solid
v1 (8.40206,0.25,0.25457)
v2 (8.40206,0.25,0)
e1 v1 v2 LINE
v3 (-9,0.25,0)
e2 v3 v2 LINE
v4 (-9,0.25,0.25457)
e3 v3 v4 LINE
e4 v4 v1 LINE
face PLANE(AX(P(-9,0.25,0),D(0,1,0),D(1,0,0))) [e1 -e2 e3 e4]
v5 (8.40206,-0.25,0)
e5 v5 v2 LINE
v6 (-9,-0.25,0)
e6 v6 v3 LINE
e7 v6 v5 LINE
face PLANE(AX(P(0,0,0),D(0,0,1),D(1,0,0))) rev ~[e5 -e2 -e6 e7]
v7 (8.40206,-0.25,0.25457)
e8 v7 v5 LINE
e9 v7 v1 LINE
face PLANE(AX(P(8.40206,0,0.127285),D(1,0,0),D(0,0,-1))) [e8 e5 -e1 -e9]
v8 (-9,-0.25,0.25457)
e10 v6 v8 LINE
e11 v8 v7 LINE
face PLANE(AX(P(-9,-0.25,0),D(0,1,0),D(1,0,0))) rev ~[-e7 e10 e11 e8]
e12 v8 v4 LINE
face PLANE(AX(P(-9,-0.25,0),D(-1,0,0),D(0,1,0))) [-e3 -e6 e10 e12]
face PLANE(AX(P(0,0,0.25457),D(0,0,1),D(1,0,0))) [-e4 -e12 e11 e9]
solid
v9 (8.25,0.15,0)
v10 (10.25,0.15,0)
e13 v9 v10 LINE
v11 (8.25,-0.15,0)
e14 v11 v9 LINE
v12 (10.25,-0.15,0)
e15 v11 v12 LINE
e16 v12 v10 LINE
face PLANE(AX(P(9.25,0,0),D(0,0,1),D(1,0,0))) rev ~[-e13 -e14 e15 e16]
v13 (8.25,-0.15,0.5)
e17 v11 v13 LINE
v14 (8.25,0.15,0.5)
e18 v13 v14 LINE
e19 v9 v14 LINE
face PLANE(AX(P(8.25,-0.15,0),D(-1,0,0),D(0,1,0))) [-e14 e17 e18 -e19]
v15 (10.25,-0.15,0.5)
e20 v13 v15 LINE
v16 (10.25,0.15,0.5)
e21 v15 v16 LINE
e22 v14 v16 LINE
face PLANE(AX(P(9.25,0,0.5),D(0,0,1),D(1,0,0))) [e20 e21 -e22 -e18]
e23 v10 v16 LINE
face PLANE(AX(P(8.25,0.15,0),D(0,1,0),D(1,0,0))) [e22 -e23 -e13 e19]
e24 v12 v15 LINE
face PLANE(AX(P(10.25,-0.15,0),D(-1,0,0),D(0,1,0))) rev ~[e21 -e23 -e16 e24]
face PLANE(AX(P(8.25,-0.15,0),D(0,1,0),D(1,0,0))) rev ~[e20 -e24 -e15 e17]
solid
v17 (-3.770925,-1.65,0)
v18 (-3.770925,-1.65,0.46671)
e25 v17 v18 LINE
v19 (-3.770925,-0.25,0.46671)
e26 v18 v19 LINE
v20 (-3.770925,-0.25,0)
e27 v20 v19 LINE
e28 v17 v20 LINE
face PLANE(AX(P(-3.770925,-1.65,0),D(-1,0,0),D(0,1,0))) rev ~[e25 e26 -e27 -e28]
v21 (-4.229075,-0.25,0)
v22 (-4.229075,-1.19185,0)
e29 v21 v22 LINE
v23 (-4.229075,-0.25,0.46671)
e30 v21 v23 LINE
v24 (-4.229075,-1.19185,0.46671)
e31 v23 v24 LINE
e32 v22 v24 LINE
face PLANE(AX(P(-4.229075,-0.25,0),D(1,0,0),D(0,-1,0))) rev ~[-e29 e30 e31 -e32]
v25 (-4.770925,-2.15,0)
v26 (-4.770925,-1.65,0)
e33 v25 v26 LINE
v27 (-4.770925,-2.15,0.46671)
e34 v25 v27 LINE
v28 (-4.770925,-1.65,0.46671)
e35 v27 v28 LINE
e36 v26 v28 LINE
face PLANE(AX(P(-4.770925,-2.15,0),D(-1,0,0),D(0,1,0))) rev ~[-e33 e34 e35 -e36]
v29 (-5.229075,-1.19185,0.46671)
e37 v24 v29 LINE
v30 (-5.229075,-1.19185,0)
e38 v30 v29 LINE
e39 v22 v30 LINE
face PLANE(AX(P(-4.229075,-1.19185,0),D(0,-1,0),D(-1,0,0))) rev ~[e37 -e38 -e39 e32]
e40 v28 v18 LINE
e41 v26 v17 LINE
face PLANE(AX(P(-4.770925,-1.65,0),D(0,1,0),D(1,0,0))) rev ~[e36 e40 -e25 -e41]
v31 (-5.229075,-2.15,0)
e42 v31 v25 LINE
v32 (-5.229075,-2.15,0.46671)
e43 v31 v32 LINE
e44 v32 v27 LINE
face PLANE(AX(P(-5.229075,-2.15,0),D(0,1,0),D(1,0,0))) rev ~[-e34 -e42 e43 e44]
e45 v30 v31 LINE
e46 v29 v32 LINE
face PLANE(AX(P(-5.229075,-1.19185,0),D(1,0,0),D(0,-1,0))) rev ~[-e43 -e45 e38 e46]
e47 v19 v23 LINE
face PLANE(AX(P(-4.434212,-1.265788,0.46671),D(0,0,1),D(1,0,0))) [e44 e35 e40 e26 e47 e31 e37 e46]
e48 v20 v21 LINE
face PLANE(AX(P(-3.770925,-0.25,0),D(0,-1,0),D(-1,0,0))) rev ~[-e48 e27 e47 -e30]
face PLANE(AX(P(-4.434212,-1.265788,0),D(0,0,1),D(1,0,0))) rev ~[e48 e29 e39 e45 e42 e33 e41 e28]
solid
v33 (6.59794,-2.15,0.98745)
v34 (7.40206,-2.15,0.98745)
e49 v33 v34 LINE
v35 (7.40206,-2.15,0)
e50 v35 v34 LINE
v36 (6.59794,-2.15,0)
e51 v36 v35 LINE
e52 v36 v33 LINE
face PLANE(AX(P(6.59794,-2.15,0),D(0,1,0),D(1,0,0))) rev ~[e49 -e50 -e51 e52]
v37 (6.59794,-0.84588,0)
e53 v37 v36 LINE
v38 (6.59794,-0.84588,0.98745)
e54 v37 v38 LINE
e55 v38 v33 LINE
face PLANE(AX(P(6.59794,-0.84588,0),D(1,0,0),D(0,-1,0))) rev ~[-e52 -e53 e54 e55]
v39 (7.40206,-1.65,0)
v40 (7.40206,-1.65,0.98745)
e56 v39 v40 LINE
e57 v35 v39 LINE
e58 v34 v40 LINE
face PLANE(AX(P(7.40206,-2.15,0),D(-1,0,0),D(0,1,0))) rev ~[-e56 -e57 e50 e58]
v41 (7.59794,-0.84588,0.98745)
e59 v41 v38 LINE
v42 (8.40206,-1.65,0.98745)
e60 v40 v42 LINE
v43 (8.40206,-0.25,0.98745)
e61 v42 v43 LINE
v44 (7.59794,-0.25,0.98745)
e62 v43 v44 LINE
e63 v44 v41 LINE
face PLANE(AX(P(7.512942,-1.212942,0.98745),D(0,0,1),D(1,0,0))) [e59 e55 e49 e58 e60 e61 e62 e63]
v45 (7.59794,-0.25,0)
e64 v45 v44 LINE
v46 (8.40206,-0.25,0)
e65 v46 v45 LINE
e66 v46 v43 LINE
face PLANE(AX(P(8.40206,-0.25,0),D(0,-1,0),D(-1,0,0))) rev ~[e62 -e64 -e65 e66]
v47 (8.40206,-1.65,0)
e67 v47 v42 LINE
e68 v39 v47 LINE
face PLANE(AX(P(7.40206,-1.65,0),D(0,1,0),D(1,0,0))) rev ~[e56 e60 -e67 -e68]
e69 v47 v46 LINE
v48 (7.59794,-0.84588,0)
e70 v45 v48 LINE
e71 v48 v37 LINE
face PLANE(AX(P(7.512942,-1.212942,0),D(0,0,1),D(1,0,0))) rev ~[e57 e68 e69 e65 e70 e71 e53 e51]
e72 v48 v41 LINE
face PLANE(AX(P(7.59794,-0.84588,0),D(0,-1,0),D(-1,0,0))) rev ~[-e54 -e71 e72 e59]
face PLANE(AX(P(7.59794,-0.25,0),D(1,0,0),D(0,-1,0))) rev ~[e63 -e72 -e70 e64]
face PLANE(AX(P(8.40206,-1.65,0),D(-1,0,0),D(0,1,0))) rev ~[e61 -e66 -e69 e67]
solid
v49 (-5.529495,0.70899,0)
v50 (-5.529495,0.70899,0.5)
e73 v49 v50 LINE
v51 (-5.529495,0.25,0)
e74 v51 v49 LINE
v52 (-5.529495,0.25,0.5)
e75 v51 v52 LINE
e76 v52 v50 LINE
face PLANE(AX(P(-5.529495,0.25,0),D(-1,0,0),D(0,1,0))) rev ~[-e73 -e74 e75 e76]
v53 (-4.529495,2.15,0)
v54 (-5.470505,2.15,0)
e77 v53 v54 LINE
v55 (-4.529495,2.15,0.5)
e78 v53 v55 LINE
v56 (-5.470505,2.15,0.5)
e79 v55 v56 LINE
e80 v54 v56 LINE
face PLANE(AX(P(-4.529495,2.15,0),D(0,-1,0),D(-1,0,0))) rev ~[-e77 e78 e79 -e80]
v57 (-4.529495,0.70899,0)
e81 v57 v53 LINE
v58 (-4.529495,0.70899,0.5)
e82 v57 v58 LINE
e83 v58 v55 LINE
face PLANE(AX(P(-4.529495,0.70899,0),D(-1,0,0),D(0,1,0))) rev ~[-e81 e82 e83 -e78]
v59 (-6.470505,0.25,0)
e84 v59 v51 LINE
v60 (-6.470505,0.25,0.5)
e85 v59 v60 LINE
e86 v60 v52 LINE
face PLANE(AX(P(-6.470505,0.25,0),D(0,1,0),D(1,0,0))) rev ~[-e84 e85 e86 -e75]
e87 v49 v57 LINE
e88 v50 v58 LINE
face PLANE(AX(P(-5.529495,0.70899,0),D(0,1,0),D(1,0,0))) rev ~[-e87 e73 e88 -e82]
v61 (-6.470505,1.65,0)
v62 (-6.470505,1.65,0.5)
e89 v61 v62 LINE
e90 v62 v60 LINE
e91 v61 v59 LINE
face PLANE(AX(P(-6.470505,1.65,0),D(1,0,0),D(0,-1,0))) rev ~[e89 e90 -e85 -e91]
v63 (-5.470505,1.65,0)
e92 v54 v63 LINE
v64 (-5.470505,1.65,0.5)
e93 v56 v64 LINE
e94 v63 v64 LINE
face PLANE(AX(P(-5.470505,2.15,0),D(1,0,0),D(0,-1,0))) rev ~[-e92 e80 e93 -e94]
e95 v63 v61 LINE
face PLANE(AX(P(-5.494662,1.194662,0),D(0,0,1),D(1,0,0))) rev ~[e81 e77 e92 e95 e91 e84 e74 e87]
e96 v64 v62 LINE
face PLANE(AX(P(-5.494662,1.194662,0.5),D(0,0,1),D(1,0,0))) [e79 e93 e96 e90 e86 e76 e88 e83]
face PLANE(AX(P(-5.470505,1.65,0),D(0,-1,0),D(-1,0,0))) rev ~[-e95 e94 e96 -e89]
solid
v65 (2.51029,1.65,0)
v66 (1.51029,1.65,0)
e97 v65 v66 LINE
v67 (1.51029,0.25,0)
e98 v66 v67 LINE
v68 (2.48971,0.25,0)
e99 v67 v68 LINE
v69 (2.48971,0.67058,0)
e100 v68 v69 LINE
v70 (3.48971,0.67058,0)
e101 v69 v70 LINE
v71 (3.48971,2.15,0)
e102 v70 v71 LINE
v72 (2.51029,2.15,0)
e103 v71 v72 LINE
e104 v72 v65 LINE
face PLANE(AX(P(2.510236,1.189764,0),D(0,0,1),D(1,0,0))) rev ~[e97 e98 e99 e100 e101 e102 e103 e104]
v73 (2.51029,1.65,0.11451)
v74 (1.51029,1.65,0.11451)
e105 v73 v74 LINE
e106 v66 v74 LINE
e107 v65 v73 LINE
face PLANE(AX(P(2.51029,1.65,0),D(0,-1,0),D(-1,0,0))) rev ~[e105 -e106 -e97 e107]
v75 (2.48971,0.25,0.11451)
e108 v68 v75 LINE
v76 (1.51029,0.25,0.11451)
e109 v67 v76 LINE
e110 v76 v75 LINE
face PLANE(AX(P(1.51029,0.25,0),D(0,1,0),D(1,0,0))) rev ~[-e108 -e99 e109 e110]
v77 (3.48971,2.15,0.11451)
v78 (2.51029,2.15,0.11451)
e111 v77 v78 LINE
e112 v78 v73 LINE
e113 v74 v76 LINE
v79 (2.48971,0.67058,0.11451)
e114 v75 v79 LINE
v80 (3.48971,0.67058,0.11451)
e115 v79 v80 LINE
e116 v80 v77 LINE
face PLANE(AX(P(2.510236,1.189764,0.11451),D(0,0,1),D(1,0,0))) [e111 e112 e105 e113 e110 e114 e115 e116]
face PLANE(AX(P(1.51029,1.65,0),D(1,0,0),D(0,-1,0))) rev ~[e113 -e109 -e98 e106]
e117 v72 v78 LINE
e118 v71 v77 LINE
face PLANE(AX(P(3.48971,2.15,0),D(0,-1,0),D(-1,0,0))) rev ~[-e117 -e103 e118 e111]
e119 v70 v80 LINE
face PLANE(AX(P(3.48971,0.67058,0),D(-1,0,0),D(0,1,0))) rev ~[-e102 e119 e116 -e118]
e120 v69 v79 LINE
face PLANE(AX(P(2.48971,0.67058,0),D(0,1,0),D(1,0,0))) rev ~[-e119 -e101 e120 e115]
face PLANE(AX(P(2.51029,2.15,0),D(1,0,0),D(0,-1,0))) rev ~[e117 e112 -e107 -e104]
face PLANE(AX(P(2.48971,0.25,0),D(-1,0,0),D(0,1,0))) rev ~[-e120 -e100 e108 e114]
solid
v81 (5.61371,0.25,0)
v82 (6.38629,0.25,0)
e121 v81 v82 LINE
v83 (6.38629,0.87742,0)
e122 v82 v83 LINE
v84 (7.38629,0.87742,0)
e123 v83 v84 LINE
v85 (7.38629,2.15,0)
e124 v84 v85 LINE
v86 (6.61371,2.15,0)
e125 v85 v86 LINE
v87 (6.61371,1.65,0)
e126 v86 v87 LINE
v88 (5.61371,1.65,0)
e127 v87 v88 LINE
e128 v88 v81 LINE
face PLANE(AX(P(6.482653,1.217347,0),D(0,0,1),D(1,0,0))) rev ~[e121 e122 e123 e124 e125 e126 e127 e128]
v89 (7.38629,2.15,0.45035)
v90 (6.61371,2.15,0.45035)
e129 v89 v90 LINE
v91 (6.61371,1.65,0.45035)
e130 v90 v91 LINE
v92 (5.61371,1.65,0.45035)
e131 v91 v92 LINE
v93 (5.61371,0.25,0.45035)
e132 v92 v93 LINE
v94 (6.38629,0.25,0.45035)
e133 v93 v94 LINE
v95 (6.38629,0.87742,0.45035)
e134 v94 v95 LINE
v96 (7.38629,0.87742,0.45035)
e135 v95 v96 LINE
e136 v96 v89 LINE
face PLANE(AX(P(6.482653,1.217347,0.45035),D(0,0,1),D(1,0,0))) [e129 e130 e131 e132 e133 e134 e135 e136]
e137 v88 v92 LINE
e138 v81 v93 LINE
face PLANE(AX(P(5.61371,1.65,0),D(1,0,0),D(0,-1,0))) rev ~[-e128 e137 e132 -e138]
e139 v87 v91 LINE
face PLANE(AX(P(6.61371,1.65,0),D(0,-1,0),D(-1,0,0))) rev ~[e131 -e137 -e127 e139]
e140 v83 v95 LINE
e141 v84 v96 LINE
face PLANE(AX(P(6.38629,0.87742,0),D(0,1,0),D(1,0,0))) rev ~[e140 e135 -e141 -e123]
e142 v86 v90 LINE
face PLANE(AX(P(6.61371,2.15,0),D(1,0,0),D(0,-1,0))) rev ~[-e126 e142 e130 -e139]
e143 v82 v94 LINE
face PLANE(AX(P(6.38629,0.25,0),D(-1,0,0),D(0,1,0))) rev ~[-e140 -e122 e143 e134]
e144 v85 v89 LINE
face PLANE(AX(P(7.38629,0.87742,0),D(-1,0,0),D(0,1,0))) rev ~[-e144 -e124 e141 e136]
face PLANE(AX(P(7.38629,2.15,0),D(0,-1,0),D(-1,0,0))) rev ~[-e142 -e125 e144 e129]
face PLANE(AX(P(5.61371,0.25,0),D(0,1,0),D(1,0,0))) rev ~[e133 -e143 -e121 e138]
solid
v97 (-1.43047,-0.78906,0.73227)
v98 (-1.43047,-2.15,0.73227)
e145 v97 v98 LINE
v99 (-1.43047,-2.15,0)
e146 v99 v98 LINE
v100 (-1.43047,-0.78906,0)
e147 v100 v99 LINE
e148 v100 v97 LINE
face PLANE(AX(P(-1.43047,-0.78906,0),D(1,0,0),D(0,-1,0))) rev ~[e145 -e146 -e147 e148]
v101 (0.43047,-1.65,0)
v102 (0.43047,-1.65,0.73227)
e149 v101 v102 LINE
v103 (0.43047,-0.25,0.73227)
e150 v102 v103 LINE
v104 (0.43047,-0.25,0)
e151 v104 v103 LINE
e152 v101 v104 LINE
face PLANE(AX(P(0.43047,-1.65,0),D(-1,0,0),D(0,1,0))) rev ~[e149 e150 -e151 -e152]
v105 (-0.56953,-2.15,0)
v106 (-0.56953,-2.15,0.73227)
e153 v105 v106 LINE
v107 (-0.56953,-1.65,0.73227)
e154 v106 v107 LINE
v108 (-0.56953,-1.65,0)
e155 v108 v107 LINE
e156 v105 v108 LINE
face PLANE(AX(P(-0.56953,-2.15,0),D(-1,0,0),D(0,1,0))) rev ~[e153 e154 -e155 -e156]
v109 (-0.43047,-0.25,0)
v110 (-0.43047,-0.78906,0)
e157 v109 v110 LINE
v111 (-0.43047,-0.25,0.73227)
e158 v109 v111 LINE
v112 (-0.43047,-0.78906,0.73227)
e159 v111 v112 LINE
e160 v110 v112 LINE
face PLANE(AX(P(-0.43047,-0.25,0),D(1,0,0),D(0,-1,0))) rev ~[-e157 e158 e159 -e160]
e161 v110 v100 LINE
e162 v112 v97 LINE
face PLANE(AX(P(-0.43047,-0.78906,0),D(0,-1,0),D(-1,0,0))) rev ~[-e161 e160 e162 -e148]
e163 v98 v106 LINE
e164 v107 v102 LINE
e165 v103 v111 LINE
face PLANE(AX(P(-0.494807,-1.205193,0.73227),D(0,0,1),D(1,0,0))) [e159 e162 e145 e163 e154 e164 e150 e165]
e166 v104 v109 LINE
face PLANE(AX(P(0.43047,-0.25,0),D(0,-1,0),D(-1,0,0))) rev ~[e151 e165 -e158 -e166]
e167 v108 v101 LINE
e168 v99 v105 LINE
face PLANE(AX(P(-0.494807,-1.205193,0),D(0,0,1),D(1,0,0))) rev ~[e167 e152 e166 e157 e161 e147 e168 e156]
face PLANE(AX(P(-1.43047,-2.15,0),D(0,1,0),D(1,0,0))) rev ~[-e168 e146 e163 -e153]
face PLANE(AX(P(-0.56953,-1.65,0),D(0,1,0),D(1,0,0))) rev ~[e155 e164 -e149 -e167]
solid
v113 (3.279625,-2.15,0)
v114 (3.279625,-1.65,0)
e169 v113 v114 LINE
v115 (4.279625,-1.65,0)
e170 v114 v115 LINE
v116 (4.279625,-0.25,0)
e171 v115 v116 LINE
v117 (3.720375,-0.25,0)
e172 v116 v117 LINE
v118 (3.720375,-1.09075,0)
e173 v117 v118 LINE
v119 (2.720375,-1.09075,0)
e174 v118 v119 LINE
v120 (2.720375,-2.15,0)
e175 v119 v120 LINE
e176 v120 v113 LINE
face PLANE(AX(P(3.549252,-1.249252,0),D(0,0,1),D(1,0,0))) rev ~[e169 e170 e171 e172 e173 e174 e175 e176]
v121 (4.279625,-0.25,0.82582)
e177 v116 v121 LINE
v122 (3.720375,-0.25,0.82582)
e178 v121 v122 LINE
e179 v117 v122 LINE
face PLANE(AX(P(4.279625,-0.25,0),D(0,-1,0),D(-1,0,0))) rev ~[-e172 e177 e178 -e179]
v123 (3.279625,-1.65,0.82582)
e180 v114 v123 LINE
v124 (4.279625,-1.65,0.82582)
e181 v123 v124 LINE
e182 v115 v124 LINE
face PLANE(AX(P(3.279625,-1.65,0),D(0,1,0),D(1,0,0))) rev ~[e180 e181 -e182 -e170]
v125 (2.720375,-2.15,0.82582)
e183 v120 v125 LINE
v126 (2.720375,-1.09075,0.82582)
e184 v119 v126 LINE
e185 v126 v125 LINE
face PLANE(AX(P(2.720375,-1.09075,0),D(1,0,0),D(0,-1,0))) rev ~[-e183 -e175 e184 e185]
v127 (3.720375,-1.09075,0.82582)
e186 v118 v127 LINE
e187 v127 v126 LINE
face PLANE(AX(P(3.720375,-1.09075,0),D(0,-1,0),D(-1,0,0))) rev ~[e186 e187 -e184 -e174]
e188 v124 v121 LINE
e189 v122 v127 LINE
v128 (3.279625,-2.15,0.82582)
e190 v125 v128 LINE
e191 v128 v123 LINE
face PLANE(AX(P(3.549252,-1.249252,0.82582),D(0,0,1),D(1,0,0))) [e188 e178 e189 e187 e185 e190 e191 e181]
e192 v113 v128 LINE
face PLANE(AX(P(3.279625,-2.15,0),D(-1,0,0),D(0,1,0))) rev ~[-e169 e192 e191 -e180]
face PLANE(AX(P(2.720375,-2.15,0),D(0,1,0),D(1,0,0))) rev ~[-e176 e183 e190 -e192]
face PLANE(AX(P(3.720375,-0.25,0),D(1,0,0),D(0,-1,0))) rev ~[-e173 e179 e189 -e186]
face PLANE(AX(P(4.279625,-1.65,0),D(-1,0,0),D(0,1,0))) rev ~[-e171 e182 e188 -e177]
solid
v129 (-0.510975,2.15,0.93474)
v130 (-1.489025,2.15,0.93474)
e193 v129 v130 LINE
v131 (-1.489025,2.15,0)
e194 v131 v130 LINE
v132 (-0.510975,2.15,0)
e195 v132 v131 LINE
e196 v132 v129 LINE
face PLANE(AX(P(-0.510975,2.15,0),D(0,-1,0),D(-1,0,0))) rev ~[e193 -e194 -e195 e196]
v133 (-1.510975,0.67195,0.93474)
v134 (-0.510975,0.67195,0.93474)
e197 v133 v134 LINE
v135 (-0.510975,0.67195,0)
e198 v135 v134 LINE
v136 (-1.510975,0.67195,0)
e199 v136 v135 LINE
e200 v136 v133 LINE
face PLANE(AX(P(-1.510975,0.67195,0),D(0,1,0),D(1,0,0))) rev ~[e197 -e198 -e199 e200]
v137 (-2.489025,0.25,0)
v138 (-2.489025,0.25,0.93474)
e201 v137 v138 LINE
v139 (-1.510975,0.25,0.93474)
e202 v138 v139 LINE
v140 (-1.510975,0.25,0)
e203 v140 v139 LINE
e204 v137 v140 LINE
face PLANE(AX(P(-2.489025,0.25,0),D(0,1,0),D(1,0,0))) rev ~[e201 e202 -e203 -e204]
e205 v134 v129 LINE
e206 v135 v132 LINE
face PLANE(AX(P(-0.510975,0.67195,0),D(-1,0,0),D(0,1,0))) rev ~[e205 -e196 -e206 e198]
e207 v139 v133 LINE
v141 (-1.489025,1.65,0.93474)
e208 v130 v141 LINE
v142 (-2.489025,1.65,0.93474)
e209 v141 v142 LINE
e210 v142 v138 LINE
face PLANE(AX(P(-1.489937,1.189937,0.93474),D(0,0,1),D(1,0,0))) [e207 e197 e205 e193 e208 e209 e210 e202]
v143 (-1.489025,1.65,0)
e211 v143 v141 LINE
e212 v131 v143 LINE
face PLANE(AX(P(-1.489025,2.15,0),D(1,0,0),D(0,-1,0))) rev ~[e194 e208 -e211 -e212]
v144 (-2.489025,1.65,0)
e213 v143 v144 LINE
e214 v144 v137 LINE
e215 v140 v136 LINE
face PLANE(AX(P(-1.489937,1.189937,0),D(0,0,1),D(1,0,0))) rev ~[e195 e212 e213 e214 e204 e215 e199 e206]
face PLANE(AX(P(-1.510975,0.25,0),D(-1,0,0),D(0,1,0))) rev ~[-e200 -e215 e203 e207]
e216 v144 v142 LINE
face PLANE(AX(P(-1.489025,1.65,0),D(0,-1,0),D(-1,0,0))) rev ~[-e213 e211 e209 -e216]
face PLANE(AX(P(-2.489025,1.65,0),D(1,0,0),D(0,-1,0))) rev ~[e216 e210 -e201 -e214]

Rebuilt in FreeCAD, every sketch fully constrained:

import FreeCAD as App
import Part
import Sketcher

doc = App.newDocument("Part")
body = doc.addObject("PartDesign::Body", "Body")

# Sketch on XY plane
sketch1 = body.newObject("Sketcher::SketchObject", "Sketch")
sketch1.AttachmentSupport = (doc.getObject("XY_Plane"), [""])
sketch1.MapMode = "FlatFace"
sketch1.addGeometry([
    Part.LineSegment(App.Vector(-9, 0.25, 0), App.Vector(-9, -0.25, 0)),
    Part.LineSegment(App.Vector(-9, -0.25, 0), App.Vector(9, -0.25, 0)),
    Part.LineSegment(App.Vector(9, -0.25, 0), App.Vector(9, 0.25, 0)),
    Part.LineSegment(App.Vector(9, 0.25, 0), App.Vector(-9, 0.25, 0)),
], False)
sketch1.addConstraint([
    Sketcher.Constraint("Coincident", 0, 2, 1, 1),
    Sketcher.Constraint("Coincident", 1, 2, 2, 1),
    Sketcher.Constraint("Coincident", 2, 2, 3, 1),
    Sketcher.Constraint("Coincident", 3, 2, 0, 1),
    Sketcher.Constraint("Vertical", 0),
    Sketcher.Constraint("Horizontal", 1),
    Sketcher.Constraint("Vertical", 2),
    Sketcher.Constraint("Horizontal", 3),
    Sketcher.Constraint("Symmetric", 0, 2, 2, 2, -1, 1),
    Sketcher.Constraint("DistanceX", 1, 1, 1, 2, 18.0),
    Sketcher.Constraint("DistanceY", 0, 2, 0, 1, 0.5),
])
pad1 = body.newObject("PartDesign::Pad", "Pad")
pad1.Profile = sketch1
pad1.Length = 0.25457

# Sketch on YZ plane
sketch2 = body.newObject("Sketcher::SketchObject", "Sketch001")
sketch2.AttachmentSupport = (doc.getObject("YZ_Plane"), [""])
sketch2.MapMode = "FlatFace"
sketch2.AttachmentOffset = App.Placement(App.Vector(0, 0, 9), App.Rotation())
sketch2.addGeometry([
    Part.LineSegment(App.Vector(0.25, 0.25457, 0), App.Vector(-0.25, 0.25457, 0)),
    Part.LineSegment(App.Vector(-0.25, 0.25457, 0), App.Vector(-0.25, 0, 0)),
    Part.LineSegment(App.Vector(-0.25, 0, 0), App.Vector(0.25, 0, 0)),
    Part.LineSegment(App.Vector(0.25, 0, 0), App.Vector(0.25, 0.25457, 0)),
], False)
sketch2.addConstraint([
    Sketcher.Constraint("Coincident", 0, 2, 1, 1),
    Sketcher.Constraint("Coincident", 1, 2, 2, 1),
    Sketcher.Constraint("Coincident", 2, 2, 3, 1),
    Sketcher.Constraint("Coincident", 3, 2, 0, 1),
    Sketcher.Constraint("Horizontal", 0),
    Sketcher.Constraint("Vertical", 1),
    Sketcher.Constraint("Horizontal", 2),
    Sketcher.Constraint("Vertical", 3),
    Sketcher.Constraint("Symmetric", 1, 2, 2, 2, -1, 1),
    Sketcher.Constraint("DistanceX", 0, 2, 0, 1, 0.5),
    Sketcher.Constraint("DistanceY", 1, 2, 1, 1, 0.25457),
])
pocket1 = body.newObject("PartDesign::Pocket", "Pocket")
pocket1.Profile = sketch2
pocket1.Length = 0.59794
body2 = doc.addObject("PartDesign::Body", "Body001")

# Sketch on XY plane
sketch3 = body2.newObject("Sketcher::SketchObject", "Sketch002")
sketch3.AttachmentSupport = (doc.getObject("XY_Plane001"), [""])
sketch3.MapMode = "FlatFace"
sketch3.addGeometry([
    Part.LineSegment(App.Vector(-5.470505, 2.15, 0), App.Vector(-5.470505, 1.65, 0)),  # 0
    Part.LineSegment(App.Vector(-5.470505, 1.65, 0), App.Vector(-6.470505, 1.65, 0)),  # 1
    Part.LineSegment(App.Vector(-6.470505, 1.65, 0), App.Vector(-6.470505, 0.25, 0)),  # 2
    Part.LineSegment(App.Vector(-6.470505, 0.25, 0), App.Vector(-5.529495, 0.25, 0)),  # 3
    Part.LineSegment(App.Vector(-5.529495, 0.25, 0), App.Vector(-5.529495, 0.70899, 0)),  # 4
    Part.LineSegment(App.Vector(-5.529495, 0.70899, 0), App.Vector(-4.529495, 0.70899, 0)),  # 5
    Part.LineSegment(App.Vector(-4.529495, 0.70899, 0), App.Vector(-4.529495, 2.15, 0)),  # 6
    Part.LineSegment(App.Vector(-4.529495, 2.15, 0), App.Vector(-5.470505, 2.15, 0)),  # 7
], False)
sketch3.addConstraint([
    Sketcher.Constraint("Coincident", 0, 2, 1, 1),
    Sketcher.Constraint("Coincident", 1, 2, 2, 1),
    Sketcher.Constraint("Coincident", 2, 2, 3, 1),
    Sketcher.Constraint("Coincident", 3, 2, 4, 1),
    Sketcher.Constraint("Coincident", 4, 2, 5, 1),
    Sketcher.Constraint("Coincident", 5, 2, 6, 1),
    Sketcher.Constraint("Coincident", 6, 2, 7, 1),
    Sketcher.Constraint("Coincident", 7, 2, 0, 1),
    Sketcher.Constraint("Vertical", 0),
    Sketcher.Constraint("Horizontal", 1),
    Sketcher.Constraint("Vertical", 2),
    Sketcher.Constraint("Horizontal", 3),
    Sketcher.Constraint("Vertical", 4),
    Sketcher.Constraint("Horizontal", 5),
    Sketcher.Constraint("Vertical", 6),
    Sketcher.Constraint("Horizontal", 7),
    Sketcher.Constraint("Equal", 1, 5),
    Sketcher.Constraint("DistanceX", 1, 2, 1, 1, 1.0),
    Sketcher.Constraint("DistanceY", 0, 2, 0, 1, 0.5),
    Sketcher.Constraint("DistanceY", 2, 2, 2, 1, 1.4),
    Sketcher.Constraint("DistanceY", -1, 1, 0, 2, 1.65),
    Sketcher.Constraint("DistanceX", 3, 1, 3, 2, 0.94101),
    Sketcher.Constraint("DistanceY", 4, 1, 4, 2, 0.45899),
    Sketcher.Constraint("DistanceX", 0, 2, -1, 1, 5.470505),
])
pad2 = body2.newObject("PartDesign::Pad", "Pad001")
pad2.Profile = sketch3
pad2.Length = 0.5
body3 = doc.addObject("PartDesign::Body", "Body002")

# Sketch on XY plane
sketch4 = body3.newObject("Sketcher::SketchObject", "Sketch003")
sketch4.AttachmentSupport = (doc.getObject("XY_Plane002"), [""])
sketch4.MapMode = "FlatFace"
sketch4.addGeometry([
    Part.LineSegment(App.Vector(-1.489025, 2.15, 0), App.Vector(-1.489025, 1.65, 0)),  # 0
    Part.LineSegment(App.Vector(-1.489025, 1.65, 0), App.Vector(-2.489025, 1.65, 0)),  # 1
    Part.LineSegment(App.Vector(-2.489025, 1.65, 0), App.Vector(-2.489025, 0.25, 0)),  # 2
    Part.LineSegment(App.Vector(-2.489025, 0.25, 0), App.Vector(-1.510975, 0.25, 0)),  # 3
    Part.LineSegment(App.Vector(-1.510975, 0.25, 0), App.Vector(-1.510975, 0.67195, 0)),  # 4
    Part.LineSegment(App.Vector(-1.510975, 0.67195, 0), App.Vector(-0.510975, 0.67195, 0)),  # 5
    Part.LineSegment(App.Vector(-0.510975, 0.67195, 0), App.Vector(-0.510975, 2.15, 0)),  # 6
    Part.LineSegment(App.Vector(-0.510975, 2.15, 0), App.Vector(-1.489025, 2.15, 0)),  # 7
], False)
sketch4.addConstraint([
    Sketcher.Constraint("Coincident", 0, 2, 1, 1),
    Sketcher.Constraint("Coincident", 1, 2, 2, 1),
    Sketcher.Constraint("Coincident", 2, 2, 3, 1),
    Sketcher.Constraint("Coincident", 3, 2, 4, 1),
    Sketcher.Constraint("Coincident", 4, 2, 5, 1),
    Sketcher.Constraint("Coincident", 5, 2, 6, 1),
    Sketcher.Constraint("Coincident", 6, 2, 7, 1),
    Sketcher.Constraint("Coincident", 7, 2, 0, 1),
    Sketcher.Constraint("Vertical", 0),
    Sketcher.Constraint("Horizontal", 1),
    Sketcher.Constraint("Vertical", 2),
    Sketcher.Constraint("Horizontal", 3),
    Sketcher.Constraint("Vertical", 4),
    Sketcher.Constraint("Horizontal", 5),
    Sketcher.Constraint("Vertical", 6),
    Sketcher.Constraint("Horizontal", 7),
    Sketcher.Constraint("Equal", 1, 5),
    Sketcher.Constraint("DistanceX", 1, 2, 1, 1, 1.0),
    Sketcher.Constraint("DistanceY", 0, 2, 0, 1, 0.5),
    Sketcher.Constraint("DistanceY", 2, 2, 2, 1, 1.4),
    Sketcher.Constraint("DistanceY", -1, 1, 0, 2, 1.65),
    Sketcher.Constraint("DistanceX", 3, 1, 3, 2, 0.97805),
    Sketcher.Constraint("DistanceY", 4, 1, 4, 2, 0.42195),
    Sketcher.Constraint("DistanceX", 0, 2, -1, 1, 1.489025),
])
pad3 = body3.newObject("PartDesign::Pad", "Pad002")
pad3.Profile = sketch4
pad3.Length = 0.93474
body4 = doc.addObject("PartDesign::Body", "Body003")

# Sketch on XY plane
sketch5 = body4.newObject("Sketcher::SketchObject", "Sketch004")
sketch5.AttachmentSupport = (doc.getObject("XY_Plane003"), [""])
sketch5.MapMode = "FlatFace"
sketch5.addGeometry([
    Part.LineSegment(App.Vector(2.51029, 2.15, 0), App.Vector(2.51029, 1.65, 0)),  # 0
    Part.LineSegment(App.Vector(2.51029, 1.65, 0), App.Vector(1.51029, 1.65, 0)),  # 1
    Part.LineSegment(App.Vector(1.51029, 1.65, 0), App.Vector(1.51029, 0.25, 0)),  # 2
    Part.LineSegment(App.Vector(1.51029, 0.25, 0), App.Vector(2.48971, 0.25, 0)),  # 3
    Part.LineSegment(App.Vector(2.48971, 0.25, 0), App.Vector(2.48971, 0.67058, 0)),  # 4
    Part.LineSegment(App.Vector(2.48971, 0.67058, 0), App.Vector(3.48971, 0.67058, 0)),  # 5
    Part.LineSegment(App.Vector(3.48971, 0.67058, 0), App.Vector(3.48971, 2.15, 0)),  # 6
    Part.LineSegment(App.Vector(3.48971, 2.15, 0), App.Vector(2.51029, 2.15, 0)),  # 7
], False)
sketch5.addConstraint([
    Sketcher.Constraint("Coincident", 0, 2, 1, 1),
    Sketcher.Constraint("Coincident", 1, 2, 2, 1),
    Sketcher.Constraint("Coincident", 2, 2, 3, 1),
    Sketcher.Constraint("Coincident", 3, 2, 4, 1),
    Sketcher.Constraint("Coincident", 4, 2, 5, 1),
    Sketcher.Constraint("Coincident", 5, 2, 6, 1),
    Sketcher.Constraint("Coincident", 6, 2, 7, 1),
    Sketcher.Constraint("Coincident", 7, 2, 0, 1),
    Sketcher.Constraint("Vertical", 0),
    Sketcher.Constraint("Horizontal", 1),
    Sketcher.Constraint("Vertical", 2),
    Sketcher.Constraint("Horizontal", 3),
    Sketcher.Constraint("Vertical", 4),
    Sketcher.Constraint("Horizontal", 5),
    Sketcher.Constraint("Vertical", 6),
    Sketcher.Constraint("Horizontal", 7),
    Sketcher.Constraint("Equal", 1, 5),
    Sketcher.Constraint("DistanceX", 1, 2, 1, 1, 1.0),
    Sketcher.Constraint("DistanceY", 0, 2, 0, 1, 0.5),
    Sketcher.Constraint("DistanceY", 2, 2, 2, 1, 1.4),
    Sketcher.Constraint("DistanceY", -1, 1, 0, 2, 1.65),
    Sketcher.Constraint("DistanceX", 3, 1, 3, 2, 0.97942),
    Sketcher.Constraint("DistanceY", 4, 1, 4, 2, 0.42058),
    Sketcher.Constraint("DistanceX", -1, 1, 0, 2, 2.51029),
])
pad4 = body4.newObject("PartDesign::Pad", "Pad003")
pad4.Profile = sketch5
pad4.Length = 0.11451
body5 = doc.addObject("PartDesign::Body", "Body004")

# Sketch on XY plane
sketch6 = body5.newObject("Sketcher::SketchObject", "Sketch005")
sketch6.AttachmentSupport = (doc.getObject("XY_Plane004"), [""])
sketch6.MapMode = "FlatFace"
sketch6.addGeometry([
    Part.LineSegment(App.Vector(6.61371, 2.15, 0), App.Vector(6.61371, 1.65, 0)),  # 0
    Part.LineSegment(App.Vector(6.61371, 1.65, 0), App.Vector(5.61371, 1.65, 0)),  # 1
    Part.LineSegment(App.Vector(5.61371, 1.65, 0), App.Vector(5.61371, 0.25, 0)),  # 2
    Part.LineSegment(App.Vector(5.61371, 0.25, 0), App.Vector(6.38629, 0.25, 0)),  # 3
    Part.LineSegment(App.Vector(6.38629, 0.25, 0), App.Vector(6.38629, 0.87742, 0)),  # 4
    Part.LineSegment(App.Vector(6.38629, 0.87742, 0), App.Vector(7.38629, 0.87742, 0)),  # 5
    Part.LineSegment(App.Vector(7.38629, 0.87742, 0), App.Vector(7.38629, 2.15, 0)),  # 6
    Part.LineSegment(App.Vector(7.38629, 2.15, 0), App.Vector(6.61371, 2.15, 0)),  # 7
], False)
sketch6.addConstraint([
    Sketcher.Constraint("Coincident", 0, 2, 1, 1),
    Sketcher.Constraint("Coincident", 1, 2, 2, 1),
    Sketcher.Constraint("Coincident", 2, 2, 3, 1),
    Sketcher.Constraint("Coincident", 3, 2, 4, 1),
    Sketcher.Constraint("Coincident", 4, 2, 5, 1),
    Sketcher.Constraint("Coincident", 5, 2, 6, 1),
    Sketcher.Constraint("Coincident", 6, 2, 7, 1),
    Sketcher.Constraint("Coincident", 7, 2, 0, 1),
    Sketcher.Constraint("Vertical", 0),
    Sketcher.Constraint("Horizontal", 1),
    Sketcher.Constraint("Vertical", 2),
    Sketcher.Constraint("Horizontal", 3),
    Sketcher.Constraint("Vertical", 4),
    Sketcher.Constraint("Horizontal", 5),
    Sketcher.Constraint("Vertical", 6),
    Sketcher.Constraint("Horizontal", 7),
    Sketcher.Constraint("Equal", 1, 5),
    Sketcher.Constraint("DistanceX", 1, 2, 1, 1, 1.0),
    Sketcher.Constraint("DistanceY", 0, 2, 0, 1, 0.5),
    Sketcher.Constraint("DistanceY", 2, 2, 2, 1, 1.4),
    Sketcher.Constraint("DistanceY", -1, 1, 0, 2, 1.65),
    Sketcher.Constraint("DistanceX", 3, 1, 3, 2, 0.77258),
    Sketcher.Constraint("DistanceY", 4, 1, 4, 2, 0.62742),
    Sketcher.Constraint("DistanceX", -1, 1, 0, 2, 6.61371),
])
pad5 = body5.newObject("PartDesign::Pad", "Pad004")
pad5.Profile = sketch6
pad5.Length = 0.45035
body6 = doc.addObject("PartDesign::Body", "Body005")

# Sketch on XY plane
sketch7 = body6.newObject("Sketcher::SketchObject", "Sketch006")
sketch7.AttachmentSupport = (doc.getObject("XY_Plane005"), [""])
sketch7.MapMode = "FlatFace"
sketch7.addGeometry([
    Part.LineSegment(App.Vector(-4.770925, -2.15, 0), App.Vector(-4.770925, -1.65, 0)),  # 0
    Part.LineSegment(App.Vector(-4.770925, -1.65, 0), App.Vector(-3.770925, -1.65, 0)),  # 1
    Part.LineSegment(App.Vector(-3.770925, -1.65, 0), App.Vector(-3.770925, -0.25, 0)),  # 2
    Part.LineSegment(App.Vector(-3.770925, -0.25, 0), App.Vector(-4.229075, -0.25, 0)),  # 3
    Part.LineSegment(App.Vector(-4.229075, -0.25, 0), App.Vector(-4.229075, -1.19185, 0)),  # 4
    Part.LineSegment(App.Vector(-4.229075, -1.19185, 0), App.Vector(-5.229075, -1.19185, 0)),  # 5
    Part.LineSegment(App.Vector(-5.229075, -1.19185, 0), App.Vector(-5.229075, -2.15, 0)),  # 6
    Part.LineSegment(App.Vector(-5.229075, -2.15, 0), App.Vector(-4.770925, -2.15, 0)),  # 7
], False)
sketch7.addConstraint([
    Sketcher.Constraint("Coincident", 0, 2, 1, 1),
    Sketcher.Constraint("Coincident", 1, 2, 2, 1),
    Sketcher.Constraint("Coincident", 2, 2, 3, 1),
    Sketcher.Constraint("Coincident", 3, 2, 4, 1),
    Sketcher.Constraint("Coincident", 4, 2, 5, 1),
    Sketcher.Constraint("Coincident", 5, 2, 6, 1),
    Sketcher.Constraint("Coincident", 6, 2, 7, 1),
    Sketcher.Constraint("Coincident", 7, 2, 0, 1),
    Sketcher.Constraint("Vertical", 0),
    Sketcher.Constraint("Horizontal", 1),
    Sketcher.Constraint("Vertical", 2),
    Sketcher.Constraint("Horizontal", 3),
    Sketcher.Constraint("Vertical", 4),
    Sketcher.Constraint("Horizontal", 5),
    Sketcher.Constraint("Vertical", 6),
    Sketcher.Constraint("Horizontal", 7),
    Sketcher.Constraint("Equal", 1, 5),
    Sketcher.Constraint("DistanceX", 1, 1, 1, 2, 1.0),
    Sketcher.Constraint("DistanceY", 0, 1, 0, 2, 0.5),
    Sketcher.Constraint("DistanceY", 2, 1, 2, 2, 1.4),
    Sketcher.Constraint("DistanceY", 0, 2, -1, 1, 1.65),
    Sketcher.Constraint("DistanceX", 3, 2, 3, 1, 0.45815),
    Sketcher.Constraint("DistanceY", 4, 2, 4, 1, 0.94185),
    Sketcher.Constraint("DistanceX", 0, 2, -1, 1, 4.770925),
])
pad6 = body6.newObject("PartDesign::Pad", "Pad005")
pad6.Profile = sketch7
pad6.Length = 0.46671
body7 = doc.addObject("PartDesign::Body", "Body006")

# Sketch on XY plane
sketch8 = body7.newObject("Sketcher::SketchObject", "Sketch007")
sketch8.AttachmentSupport = (doc.getObject("XY_Plane006"), [""])
sketch8.MapMode = "FlatFace"
sketch8.addGeometry([
    Part.LineSegment(App.Vector(-0.56953, -2.15, 0), App.Vector(-0.56953, -1.65, 0)),  # 0
    Part.LineSegment(App.Vector(-0.56953, -1.65, 0), App.Vector(0.43047, -1.65, 0)),  # 1
    Part.LineSegment(App.Vector(0.43047, -1.65, 0), App.Vector(0.43047, -0.25, 0)),  # 2
    Part.LineSegment(App.Vector(0.43047, -0.25, 0), App.Vector(-0.43047, -0.25, 0)),  # 3
    Part.LineSegment(App.Vector(-0.43047, -0.25, 0), App.Vector(-0.43047, -0.78906, 0)),  # 4
    Part.LineSegment(App.Vector(-0.43047, -0.78906, 0), App.Vector(-1.43047, -0.78906, 0)),  # 5
    Part.LineSegment(App.Vector(-1.43047, -0.78906, 0), App.Vector(-1.43047, -2.15, 0)),  # 6
    Part.LineSegment(App.Vector(-1.43047, -2.15, 0), App.Vector(-0.56953, -2.15, 0)),  # 7
], False)
sketch8.addConstraint([
    Sketcher.Constraint("Coincident", 0, 2, 1, 1),
    Sketcher.Constraint("Coincident", 1, 2, 2, 1),
    Sketcher.Constraint("Coincident", 2, 2, 3, 1),
    Sketcher.Constraint("Coincident", 3, 2, 4, 1),
    Sketcher.Constraint("Coincident", 4, 2, 5, 1),
    Sketcher.Constraint("Coincident", 5, 2, 6, 1),
    Sketcher.Constraint("Coincident", 6, 2, 7, 1),
    Sketcher.Constraint("Coincident", 7, 2, 0, 1),
    Sketcher.Constraint("Vertical", 0),
    Sketcher.Constraint("Horizontal", 1),
    Sketcher.Constraint("Vertical", 2),
    Sketcher.Constraint("Horizontal", 3),
    Sketcher.Constraint("Vertical", 4),
    Sketcher.Constraint("Horizontal", 5),
    Sketcher.Constraint("Vertical", 6),
    Sketcher.Constraint("Horizontal", 7),
    Sketcher.Constraint("Equal", 1, 5),
    Sketcher.Constraint("DistanceX", 1, 1, 1, 2, 1.0),
    Sketcher.Constraint("DistanceY", 0, 1, 0, 2, 0.5),
    Sketcher.Constraint("DistanceY", 2, 1, 2, 2, 1.4),
    Sketcher.Constraint("DistanceY", 0, 2, -1, 1, 1.65),
    Sketcher.Constraint("DistanceX", 3, 2, 3, 1, 0.86094),
    Sketcher.Constraint("DistanceY", 4, 2, 4, 1, 0.53906),
    Sketcher.Constraint("DistanceX", 0, 2, -1, 1, 0.56953),
])
pad7 = body7.newObject("PartDesign::Pad", "Pad006")
pad7.Profile = sketch8
pad7.Length = 0.73227
body8 = doc.addObject("PartDesign::Body", "Body007")

# Sketch on XY plane
sketch9 = body8.newObject("Sketcher::SketchObject", "Sketch008")
sketch9.AttachmentSupport = (doc.getObject("XY_Plane007"), [""])
sketch9.MapMode = "FlatFace"
sketch9.addGeometry([
    Part.LineSegment(App.Vector(3.279625, -2.15, 0), App.Vector(3.279625, -1.65, 0)),  # 0
    Part.LineSegment(App.Vector(3.279625, -1.65, 0), App.Vector(4.279625, -1.65, 0)),  # 1
    Part.LineSegment(App.Vector(4.279625, -1.65, 0), App.Vector(4.279625, -0.25, 0)),  # 2
    Part.LineSegment(App.Vector(4.279625, -0.25, 0), App.Vector(3.720375, -0.25, 0)),  # 3
    Part.LineSegment(App.Vector(3.720375, -0.25, 0), App.Vector(3.720375, -1.09075, 0)),  # 4
    Part.LineSegment(App.Vector(3.720375, -1.09075, 0), App.Vector(2.720375, -1.09075, 0)),  # 5
    Part.LineSegment(App.Vector(2.720375, -1.09075, 0), App.Vector(2.720375, -2.15, 0)),  # 6
    Part.LineSegment(App.Vector(2.720375, -2.15, 0), App.Vector(3.279625, -2.15, 0)),  # 7
], False)
sketch9.addConstraint([
    Sketcher.Constraint("Coincident", 0, 2, 1, 1),
    Sketcher.Constraint("Coincident", 1, 2, 2, 1),
    Sketcher.Constraint("Coincident", 2, 2, 3, 1),
    Sketcher.Constraint("Coincident", 3, 2, 4, 1),
    Sketcher.Constraint("Coincident", 4, 2, 5, 1),
    Sketcher.Constraint("Coincident", 5, 2, 6, 1),
    Sketcher.Constraint("Coincident", 6, 2, 7, 1),
    Sketcher.Constraint("Coincident", 7, 2, 0, 1),
    Sketcher.Constraint("Vertical", 0),
    Sketcher.Constraint("Horizontal", 1),
    Sketcher.Constraint("Vertical", 2),
    Sketcher.Constraint("Horizontal", 3),
    Sketcher.Constraint("Vertical", 4),
    Sketcher.Constraint("Horizontal", 5),
    Sketcher.Constraint("Vertical", 6),
    Sketcher.Constraint("Horizontal", 7),
    Sketcher.Constraint("Equal", 1, 5),
    Sketcher.Constraint("DistanceX", 1, 1, 1, 2, 1.0),
    Sketcher.Constraint("DistanceY", 0, 1, 0, 2, 0.5),
    Sketcher.Constraint("DistanceY", 2, 1, 2, 2, 1.4),
    Sketcher.Constraint("DistanceY", 0, 2, -1, 1, 1.65),
    Sketcher.Constraint("DistanceX", 3, 2, 3, 1, 0.55925),
    Sketcher.Constraint("DistanceY", 4, 2, 4, 1, 0.84075),
    Sketcher.Constraint("DistanceX", -1, 1, 0, 2, 3.279625),
])
pad8 = body8.newObject("PartDesign::Pad", "Pad007")
pad8.Profile = sketch9
pad8.Length = 0.82582
body9 = doc.addObject("PartDesign::Body", "Body008")

# Sketch on XY plane
sketch10 = body9.newObject("Sketcher::SketchObject", "Sketch009")
sketch10.AttachmentSupport = (doc.getObject("XY_Plane008"), [""])
sketch10.MapMode = "FlatFace"
sketch10.addGeometry([
    Part.LineSegment(App.Vector(7.40206, -2.15, 0), App.Vector(7.40206, -1.65, 0)),  # 0
    Part.LineSegment(App.Vector(7.40206, -1.65, 0), App.Vector(8.40206, -1.65, 0)),  # 1
    Part.LineSegment(App.Vector(8.40206, -1.65, 0), App.Vector(8.40206, -0.25, 0)),  # 2
    Part.LineSegment(App.Vector(8.40206, -0.25, 0), App.Vector(7.59794, -0.25, 0)),  # 3
    Part.LineSegment(App.Vector(7.59794, -0.25, 0), App.Vector(7.59794, -0.84588, 0)),  # 4
    Part.LineSegment(App.Vector(7.59794, -0.84588, 0), App.Vector(6.59794, -0.84588, 0)),  # 5
    Part.LineSegment(App.Vector(6.59794, -0.84588, 0), App.Vector(6.59794, -2.15, 0)),  # 6
    Part.LineSegment(App.Vector(6.59794, -2.15, 0), App.Vector(7.40206, -2.15, 0)),  # 7
], False)
sketch10.addConstraint([
    Sketcher.Constraint("Coincident", 0, 2, 1, 1),
    Sketcher.Constraint("Coincident", 1, 2, 2, 1),
    Sketcher.Constraint("Coincident", 2, 2, 3, 1),
    Sketcher.Constraint("Coincident", 3, 2, 4, 1),
    Sketcher.Constraint("Coincident", 4, 2, 5, 1),
    Sketcher.Constraint("Coincident", 5, 2, 6, 1),
    Sketcher.Constraint("Coincident", 6, 2, 7, 1),
    Sketcher.Constraint("Coincident", 7, 2, 0, 1),
    Sketcher.Constraint("Vertical", 0),
    Sketcher.Constraint("Horizontal", 1),
    Sketcher.Constraint("Vertical", 2),
    Sketcher.Constraint("Horizontal", 3),
    Sketcher.Constraint("Vertical", 4),
    Sketcher.Constraint("Horizontal", 5),
    Sketcher.Constraint("Vertical", 6),
    Sketcher.Constraint("Horizontal", 7),
    Sketcher.Constraint("Equal", 1, 5),
    Sketcher.Constraint("DistanceX", 1, 1, 1, 2, 1.0),
    Sketcher.Constraint("DistanceY", 0, 1, 0, 2, 0.5),
    Sketcher.Constraint("DistanceY", 2, 1, 2, 2, 1.4),
    Sketcher.Constraint("DistanceY", 0, 2, -1, 1, 1.65),
    Sketcher.Constraint("DistanceX", 3, 2, 3, 1, 0.80412),
    Sketcher.Constraint("DistanceY", 4, 2, 4, 1, 0.59588),
    Sketcher.Constraint("DistanceX", -1, 1, 0, 2, 7.40206),
])
pad9 = body9.newObject("PartDesign::Pad", "Pad008")
pad9.Profile = sketch10
pad9.Length = 0.98745
body10 = doc.addObject("PartDesign::Body", "Body009")

# Sketch on XY plane
sketch11 = body10.newObject("Sketcher::SketchObject", "Sketch010")
sketch11.AttachmentSupport = (doc.getObject("XY_Plane009"), [""])
sketch11.MapMode = "FlatFace"
sketch11.addGeometry([
    Part.LineSegment(App.Vector(8.25, 0.15, 0), App.Vector(8.25, -0.15, 0)),
    Part.LineSegment(App.Vector(8.25, -0.15, 0), App.Vector(10.25, -0.15, 0)),
    Part.LineSegment(App.Vector(10.25, -0.15, 0), App.Vector(10.25, 0.15, 0)),
    Part.LineSegment(App.Vector(10.25, 0.15, 0), App.Vector(8.25, 0.15, 0)),
], False)
sketch11.addConstraint([
    Sketcher.Constraint("Coincident", 0, 2, 1, 1),
    Sketcher.Constraint("Coincident", 1, 2, 2, 1),
    Sketcher.Constraint("Coincident", 2, 2, 3, 1),
    Sketcher.Constraint("Coincident", 3, 2, 0, 1),
    Sketcher.Constraint("Vertical", 0),
    Sketcher.Constraint("Horizontal", 1),
    Sketcher.Constraint("Vertical", 2),
    Sketcher.Constraint("Horizontal", 3),
    Sketcher.Constraint("DistanceX", 1, 1, 1, 2, 2.0),
    Sketcher.Constraint("DistanceY", 0, 2, 0, 1, 0.3),
    Sketcher.Constraint("DistanceX", -1, 1, 0, 2, 8.25),
    Sketcher.Constraint("DistanceY", 0, 2, -1, 1, 0.15),
])
pad10 = body10.newObject("PartDesign::Pad", "Pad009")
pad10.Profile = sketch11
pad10.Length = 0.5

doc.recompute()
